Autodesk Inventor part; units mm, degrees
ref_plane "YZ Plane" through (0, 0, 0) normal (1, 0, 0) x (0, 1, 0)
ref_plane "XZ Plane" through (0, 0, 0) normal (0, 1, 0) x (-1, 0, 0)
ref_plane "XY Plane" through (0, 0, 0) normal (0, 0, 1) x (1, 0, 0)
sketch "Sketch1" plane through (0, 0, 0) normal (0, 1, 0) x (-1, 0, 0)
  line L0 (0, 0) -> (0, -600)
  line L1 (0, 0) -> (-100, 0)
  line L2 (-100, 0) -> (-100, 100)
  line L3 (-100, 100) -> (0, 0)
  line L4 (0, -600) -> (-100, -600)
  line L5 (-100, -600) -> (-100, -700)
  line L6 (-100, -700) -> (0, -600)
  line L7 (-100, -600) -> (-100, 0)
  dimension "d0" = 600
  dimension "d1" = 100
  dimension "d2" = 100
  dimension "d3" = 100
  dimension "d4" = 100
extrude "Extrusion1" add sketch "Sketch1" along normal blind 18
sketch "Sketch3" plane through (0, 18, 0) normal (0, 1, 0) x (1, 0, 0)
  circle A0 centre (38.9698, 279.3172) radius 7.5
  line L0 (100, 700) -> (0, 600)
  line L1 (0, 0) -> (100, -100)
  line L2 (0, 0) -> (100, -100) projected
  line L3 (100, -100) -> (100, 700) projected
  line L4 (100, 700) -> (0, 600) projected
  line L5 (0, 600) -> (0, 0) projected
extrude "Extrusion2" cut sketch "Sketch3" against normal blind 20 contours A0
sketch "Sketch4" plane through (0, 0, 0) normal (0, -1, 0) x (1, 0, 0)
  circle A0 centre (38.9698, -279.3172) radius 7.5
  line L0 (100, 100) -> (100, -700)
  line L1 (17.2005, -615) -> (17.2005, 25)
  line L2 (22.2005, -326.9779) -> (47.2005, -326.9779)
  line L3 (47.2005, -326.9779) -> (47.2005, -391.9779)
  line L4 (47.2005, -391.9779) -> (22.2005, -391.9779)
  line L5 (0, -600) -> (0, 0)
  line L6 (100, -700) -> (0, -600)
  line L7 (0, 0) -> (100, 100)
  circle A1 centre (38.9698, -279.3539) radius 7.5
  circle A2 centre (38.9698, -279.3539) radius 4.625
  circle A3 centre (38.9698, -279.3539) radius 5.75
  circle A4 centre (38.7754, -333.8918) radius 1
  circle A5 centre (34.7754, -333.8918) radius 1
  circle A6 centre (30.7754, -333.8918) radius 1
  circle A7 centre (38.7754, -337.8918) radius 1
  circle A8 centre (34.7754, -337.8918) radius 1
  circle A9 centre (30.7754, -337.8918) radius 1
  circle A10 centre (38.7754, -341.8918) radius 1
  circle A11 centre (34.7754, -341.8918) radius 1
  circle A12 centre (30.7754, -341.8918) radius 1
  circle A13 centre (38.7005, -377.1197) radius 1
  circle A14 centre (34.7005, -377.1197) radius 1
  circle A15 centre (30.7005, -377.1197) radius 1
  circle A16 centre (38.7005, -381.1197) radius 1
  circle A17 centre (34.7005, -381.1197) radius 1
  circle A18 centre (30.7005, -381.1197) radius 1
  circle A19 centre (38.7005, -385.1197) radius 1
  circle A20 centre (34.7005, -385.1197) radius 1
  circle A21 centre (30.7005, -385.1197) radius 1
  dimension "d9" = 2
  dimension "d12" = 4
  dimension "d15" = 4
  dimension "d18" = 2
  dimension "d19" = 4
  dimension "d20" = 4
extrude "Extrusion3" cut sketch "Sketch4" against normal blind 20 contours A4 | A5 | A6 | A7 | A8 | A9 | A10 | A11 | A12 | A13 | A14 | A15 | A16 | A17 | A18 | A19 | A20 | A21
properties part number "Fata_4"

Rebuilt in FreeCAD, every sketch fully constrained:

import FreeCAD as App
import Part
import Sketcher
from FreeCAD import Vector

doc = App.newDocument("Part")
body = doc.addObject("PartDesign::Body", "Body")

# Sketch on XZ plane
sketch1 = doc.addObject("Sketcher::SketchObject", "Sketch")
body.addObject(sketch1)
sketch1.AttachmentSupport = (doc.XZ_Plane, [""])
sketch1.MapMode = "FlatFace"
sketch1.addGeometry([
    Part.LineSegment(Vector(0, -600, 0), Vector(0, 0, 0)),
    Part.LineSegment(Vector(0, 0, 0), Vector(100, 100, 0)),
    Part.LineSegment(Vector(100, 100, 0), Vector(100, -700, 0)),
    Part.LineSegment(Vector(100, -700, 0), Vector(0, -600, 0)),
], False)
sketch1.addConstraint([
    Sketcher.Constraint("Coincident", 0, 2, 1, 1),
    Sketcher.Constraint("Coincident", 1, 2, 2, 1),
    Sketcher.Constraint("Coincident", 2, 2, 3, 1),
    Sketcher.Constraint("Coincident", 3, 2, 0, 1),
    Sketcher.Constraint("Vertical", 0),
    Sketcher.Constraint("Vertical", 2),
    Sketcher.Constraint("Coincident", 0, 2, -1, 1),
    Sketcher.Constraint("Perpendicular", 1, 3),
    Sketcher.Constraint("Equal", 1, 3),
    Sketcher.Constraint("DistanceY", 0, 1, 0, 2, 600.0),
    Sketcher.Constraint("DistanceX", -1, 1, 1, 2, 100.0),
])
pad1 = doc.addObject("PartDesign::Pad", "Pad")
body.addObject(pad1)
pad1.Profile = sketch1
pad1.Length = 18
pad1.Reversed = True

# Sketch on XZ plane
sketch2 = doc.addObject("Sketcher::SketchObject", "Sketch001")
body.addObject(sketch2)
sketch2.AttachmentSupport = (doc.XZ_Plane, [""])
sketch2.MapMode = "FlatFace"
sketch2.AttachmentOffset = App.Placement(Vector(0, 0, -18), App.Rotation())
sketch2.addGeometry(Part.Circle(Vector(38.9698, -279.3172, 0), Vector(0, 0, 1), 7.5), False)
sketch2.addConstraint([
    Sketcher.Constraint("Diameter", 0, 15.0),
    Sketcher.Constraint("DistanceX", -1, 1, 0, 3, 38.9698),
    Sketcher.Constraint("DistanceY", 0, 3, -1, 1, 279.3172),
])
pocket1 = doc.addObject("PartDesign::Pocket", "Pocket")
body.addObject(pocket1)
pocket1.Profile = sketch2
pocket1.Length = 20
pocket1.Reversed = True

# Sketch on XZ plane
sketch3 = doc.addObject("Sketcher::SketchObject", "Sketch002")
body.addObject(sketch3)
sketch3.AttachmentSupport = (doc.XZ_Plane, [""])
sketch3.MapMode = "FlatFace"
sketch3.addGeometry([
    Part.Circle(Vector(38.7754, -333.8918, 0), Vector(0, 0, 1), 1),  # 0
    Part.Circle(Vector(34.7754, -333.8918, 0), Vector(0, 0, 1), 1),  # 1
    Part.Circle(Vector(30.7754, -333.8918, 0), Vector(0, 0, 1), 1),  # 2
    Part.Circle(Vector(38.7754, -337.8918, 0), Vector(0, 0, 1), 1),  # 3
    Part.Circle(Vector(34.7754, -337.8918, 0), Vector(0, 0, 1), 1),  # 4
    Part.Circle(Vector(30.7754, -337.8918, 0), Vector(0, 0, 1), 1),  # 5
    Part.Circle(Vector(38.7754, -341.8918, 0), Vector(0, 0, 1), 1),  # 6
    Part.Circle(Vector(34.7754, -341.8918, 0), Vector(0, 0, 1), 1),  # 7
    Part.Circle(Vector(30.7754, -341.8918, 0), Vector(0, 0, 1), 1),  # 8
    Part.Circle(Vector(38.7005, -377.1197, 0), Vector(0, 0, 1), 1),  # 9
    Part.Circle(Vector(34.7005, -377.1197, 0), Vector(0, 0, 1), 1),  # 10
    Part.Circle(Vector(30.7005, -377.1197, 0), Vector(0, 0, 1), 1),  # 11
    Part.Circle(Vector(38.7005, -381.1197, 0), Vector(0, 0, 1), 1),  # 12
    Part.Circle(Vector(34.7005, -381.1197, 0), Vector(0, 0, 1), 1),  # 13
    Part.Circle(Vector(30.7005, -381.1197, 0), Vector(0, 0, 1), 1),  # 14
    Part.Circle(Vector(38.7005, -385.1197, 0), Vector(0, 0, 1), 1),  # 15
    Part.Circle(Vector(34.7005, -385.1197, 0), Vector(0, 0, 1), 1),  # 16
    Part.Circle(Vector(30.7005, -385.1197, 0), Vector(0, 0, 1), 1),  # 17
], False)
sketch3.addConstraint([
    Sketcher.Constraint("Equal", 0, 1),
    Sketcher.Constraint("Equal", 1, 2),
    Sketcher.Constraint("Equal", 2, 3),
    Sketcher.Constraint("Equal", 3, 4),
    Sketcher.Constraint("Equal", 4, 5),
    Sketcher.Constraint("Equal", 5, 6),
    Sketcher.Constraint("Equal", 6, 7),
    Sketcher.Constraint("Equal", 7, 8),
    Sketcher.Constraint("Equal", 8, 9),
    Sketcher.Constraint("Equal", 9, 10),
    Sketcher.Constraint("Equal", 10, 11),
    Sketcher.Constraint("Equal", 11, 12),
    Sketcher.Constraint("Equal", 12, 13),
    Sketcher.Constraint("Equal", 13, 14),
    Sketcher.Constraint("Equal", 14, 15),
    Sketcher.Constraint("Equal", 15, 16),
    Sketcher.Constraint("Equal", 16, 17),
    Sketcher.Constraint("Horizontal", 0, 3, 1, 3),
    Sketcher.Constraint("Horizontal", 1, 3, 2, 3),
    Sketcher.Constraint("Horizontal", 3, 3, 4, 3),
    Sketcher.Constraint("Horizontal", 4, 3, 5, 3),
    Sketcher.Constraint("Horizontal", 6, 3, 7, 3),
    Sketcher.Constraint("Horizontal", 7, 3, 8, 3),
    Sketcher.Constraint("Horizontal", 9, 3, 10, 3),
    Sketcher.Constraint("Horizontal", 10, 3, 11, 3),
    Sketcher.Constraint("Horizontal", 12, 3, 13, 3),
    Sketcher.Constraint("Horizontal", 13, 3, 14, 3),
    Sketcher.Constraint("Horizontal", 15, 3, 16, 3),
    Sketcher.Constraint("Horizontal", 16, 3, 17, 3),
    Sketcher.Constraint("Vertical", 0, 3, 3, 3),
    Sketcher.Constraint("Vertical", 1, 3, 4, 3),
    Sketcher.Constraint("Vertical", 2, 3, 5, 3),
    Sketcher.Constraint("Vertical", 3, 3, 6, 3),
    Sketcher.Constraint("Vertical", 4, 3, 7, 3),
    Sketcher.Constraint("Vertical", 5, 3, 8, 3),
    Sketcher.Constraint("Vertical", 9, 3, 12, 3),
    Sketcher.Constraint("Vertical", 10, 3, 13, 3),
    Sketcher.Constraint("Vertical", 11, 3, 14, 3),
    Sketcher.Constraint("Vertical", 12, 3, 15, 3),
    Sketcher.Constraint("Vertical", 13, 3, 16, 3),
    Sketcher.Constraint("Vertical", 14, 3, 17, 3),
    Sketcher.Constraint("Diameter", 0, 2.0),
    Sketcher.Constraint("DistanceX", 1, 3, 0, 3, 4.0),
    Sketcher.Constraint("DistanceX", 2, 3, 1, 3, 4.0),
    Sketcher.Constraint("DistanceY", 3, 3, 0, 3, 4.0),
    Sketcher.Constraint("DistanceY", 6, 3, 3, 3, 4.0),
    Sketcher.Constraint("DistanceX", 10, 3, 9, 3, 4.0),
    Sketcher.Constraint("DistanceX", 11, 3, 10, 3, 4.0),
    Sketcher.Constraint("DistanceY", 12, 3, 9, 3, 4.0),
    Sketcher.Constraint("DistanceY", 15, 3, 12, 3, 4.0),
    Sketcher.Constraint("DistanceX", 9, 3, 6, 3, 0.075),
    Sketcher.Constraint("DistanceY", 9, 3, 6, 3, 35.228),
    Sketcher.Constraint("DistanceX", -1, 1, 0, 3, 38.7754),
    Sketcher.Constraint("DistanceY", 0, 3, -1, 1, 333.8918),
])
pocket2 = doc.addObject("PartDesign::Pocket", "Pocket001")
body.addObject(pocket2)
pocket2.Profile = sketch3
pocket2.Length = 20

doc.recompute()
